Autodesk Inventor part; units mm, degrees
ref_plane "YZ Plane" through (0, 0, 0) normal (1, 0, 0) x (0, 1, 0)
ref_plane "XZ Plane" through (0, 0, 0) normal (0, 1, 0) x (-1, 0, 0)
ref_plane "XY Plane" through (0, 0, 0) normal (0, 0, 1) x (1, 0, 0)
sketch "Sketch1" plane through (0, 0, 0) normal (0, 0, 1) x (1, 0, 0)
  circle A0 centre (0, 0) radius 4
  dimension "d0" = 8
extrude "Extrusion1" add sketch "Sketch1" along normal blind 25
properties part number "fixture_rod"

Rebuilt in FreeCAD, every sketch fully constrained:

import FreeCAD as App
import Part
import Sketcher

doc = App.newDocument("Part")
params = doc.addObject("Spreadsheet::Sheet", "Params")
for row, (alias, value) in enumerate([
    ("sketch1_diameter", "8 mm"),
    ("pad1_length", "25 mm"),
], start=1):
    params.set(f"A{row}", alias)
    params.set(f"B{row}", "=" + value)
    params.setAlias(f"B{row}", alias)

body = doc.addObject("PartDesign::Body", "Body")

sketch1 = body.newObject("Sketcher::SketchObject", "Sketch")
sketch1.AttachmentSupport = (doc.getObject("XY_Plane"), [""])
sketch1.MapMode = "FlatFace"
sketch1.addGeometry(Part.Circle(App.Vector(0, 0, 0), App.Vector(0, 0, 1), 4), False)
sketch1.addConstraint([
    Sketcher.Constraint("Coincident", 0, 3, -1, 1),
    Sketcher.Constraint("Diameter", 0, 8.0),
])
sketch1.setExpression("Constraints[1]", "Params.sketch1_diameter")
pad1 = body.newObject("PartDesign::Pad", "Pad")
pad1.Profile = sketch1
pad1.setExpression("Length", "Params.pad1_length")

doc.recompute()
